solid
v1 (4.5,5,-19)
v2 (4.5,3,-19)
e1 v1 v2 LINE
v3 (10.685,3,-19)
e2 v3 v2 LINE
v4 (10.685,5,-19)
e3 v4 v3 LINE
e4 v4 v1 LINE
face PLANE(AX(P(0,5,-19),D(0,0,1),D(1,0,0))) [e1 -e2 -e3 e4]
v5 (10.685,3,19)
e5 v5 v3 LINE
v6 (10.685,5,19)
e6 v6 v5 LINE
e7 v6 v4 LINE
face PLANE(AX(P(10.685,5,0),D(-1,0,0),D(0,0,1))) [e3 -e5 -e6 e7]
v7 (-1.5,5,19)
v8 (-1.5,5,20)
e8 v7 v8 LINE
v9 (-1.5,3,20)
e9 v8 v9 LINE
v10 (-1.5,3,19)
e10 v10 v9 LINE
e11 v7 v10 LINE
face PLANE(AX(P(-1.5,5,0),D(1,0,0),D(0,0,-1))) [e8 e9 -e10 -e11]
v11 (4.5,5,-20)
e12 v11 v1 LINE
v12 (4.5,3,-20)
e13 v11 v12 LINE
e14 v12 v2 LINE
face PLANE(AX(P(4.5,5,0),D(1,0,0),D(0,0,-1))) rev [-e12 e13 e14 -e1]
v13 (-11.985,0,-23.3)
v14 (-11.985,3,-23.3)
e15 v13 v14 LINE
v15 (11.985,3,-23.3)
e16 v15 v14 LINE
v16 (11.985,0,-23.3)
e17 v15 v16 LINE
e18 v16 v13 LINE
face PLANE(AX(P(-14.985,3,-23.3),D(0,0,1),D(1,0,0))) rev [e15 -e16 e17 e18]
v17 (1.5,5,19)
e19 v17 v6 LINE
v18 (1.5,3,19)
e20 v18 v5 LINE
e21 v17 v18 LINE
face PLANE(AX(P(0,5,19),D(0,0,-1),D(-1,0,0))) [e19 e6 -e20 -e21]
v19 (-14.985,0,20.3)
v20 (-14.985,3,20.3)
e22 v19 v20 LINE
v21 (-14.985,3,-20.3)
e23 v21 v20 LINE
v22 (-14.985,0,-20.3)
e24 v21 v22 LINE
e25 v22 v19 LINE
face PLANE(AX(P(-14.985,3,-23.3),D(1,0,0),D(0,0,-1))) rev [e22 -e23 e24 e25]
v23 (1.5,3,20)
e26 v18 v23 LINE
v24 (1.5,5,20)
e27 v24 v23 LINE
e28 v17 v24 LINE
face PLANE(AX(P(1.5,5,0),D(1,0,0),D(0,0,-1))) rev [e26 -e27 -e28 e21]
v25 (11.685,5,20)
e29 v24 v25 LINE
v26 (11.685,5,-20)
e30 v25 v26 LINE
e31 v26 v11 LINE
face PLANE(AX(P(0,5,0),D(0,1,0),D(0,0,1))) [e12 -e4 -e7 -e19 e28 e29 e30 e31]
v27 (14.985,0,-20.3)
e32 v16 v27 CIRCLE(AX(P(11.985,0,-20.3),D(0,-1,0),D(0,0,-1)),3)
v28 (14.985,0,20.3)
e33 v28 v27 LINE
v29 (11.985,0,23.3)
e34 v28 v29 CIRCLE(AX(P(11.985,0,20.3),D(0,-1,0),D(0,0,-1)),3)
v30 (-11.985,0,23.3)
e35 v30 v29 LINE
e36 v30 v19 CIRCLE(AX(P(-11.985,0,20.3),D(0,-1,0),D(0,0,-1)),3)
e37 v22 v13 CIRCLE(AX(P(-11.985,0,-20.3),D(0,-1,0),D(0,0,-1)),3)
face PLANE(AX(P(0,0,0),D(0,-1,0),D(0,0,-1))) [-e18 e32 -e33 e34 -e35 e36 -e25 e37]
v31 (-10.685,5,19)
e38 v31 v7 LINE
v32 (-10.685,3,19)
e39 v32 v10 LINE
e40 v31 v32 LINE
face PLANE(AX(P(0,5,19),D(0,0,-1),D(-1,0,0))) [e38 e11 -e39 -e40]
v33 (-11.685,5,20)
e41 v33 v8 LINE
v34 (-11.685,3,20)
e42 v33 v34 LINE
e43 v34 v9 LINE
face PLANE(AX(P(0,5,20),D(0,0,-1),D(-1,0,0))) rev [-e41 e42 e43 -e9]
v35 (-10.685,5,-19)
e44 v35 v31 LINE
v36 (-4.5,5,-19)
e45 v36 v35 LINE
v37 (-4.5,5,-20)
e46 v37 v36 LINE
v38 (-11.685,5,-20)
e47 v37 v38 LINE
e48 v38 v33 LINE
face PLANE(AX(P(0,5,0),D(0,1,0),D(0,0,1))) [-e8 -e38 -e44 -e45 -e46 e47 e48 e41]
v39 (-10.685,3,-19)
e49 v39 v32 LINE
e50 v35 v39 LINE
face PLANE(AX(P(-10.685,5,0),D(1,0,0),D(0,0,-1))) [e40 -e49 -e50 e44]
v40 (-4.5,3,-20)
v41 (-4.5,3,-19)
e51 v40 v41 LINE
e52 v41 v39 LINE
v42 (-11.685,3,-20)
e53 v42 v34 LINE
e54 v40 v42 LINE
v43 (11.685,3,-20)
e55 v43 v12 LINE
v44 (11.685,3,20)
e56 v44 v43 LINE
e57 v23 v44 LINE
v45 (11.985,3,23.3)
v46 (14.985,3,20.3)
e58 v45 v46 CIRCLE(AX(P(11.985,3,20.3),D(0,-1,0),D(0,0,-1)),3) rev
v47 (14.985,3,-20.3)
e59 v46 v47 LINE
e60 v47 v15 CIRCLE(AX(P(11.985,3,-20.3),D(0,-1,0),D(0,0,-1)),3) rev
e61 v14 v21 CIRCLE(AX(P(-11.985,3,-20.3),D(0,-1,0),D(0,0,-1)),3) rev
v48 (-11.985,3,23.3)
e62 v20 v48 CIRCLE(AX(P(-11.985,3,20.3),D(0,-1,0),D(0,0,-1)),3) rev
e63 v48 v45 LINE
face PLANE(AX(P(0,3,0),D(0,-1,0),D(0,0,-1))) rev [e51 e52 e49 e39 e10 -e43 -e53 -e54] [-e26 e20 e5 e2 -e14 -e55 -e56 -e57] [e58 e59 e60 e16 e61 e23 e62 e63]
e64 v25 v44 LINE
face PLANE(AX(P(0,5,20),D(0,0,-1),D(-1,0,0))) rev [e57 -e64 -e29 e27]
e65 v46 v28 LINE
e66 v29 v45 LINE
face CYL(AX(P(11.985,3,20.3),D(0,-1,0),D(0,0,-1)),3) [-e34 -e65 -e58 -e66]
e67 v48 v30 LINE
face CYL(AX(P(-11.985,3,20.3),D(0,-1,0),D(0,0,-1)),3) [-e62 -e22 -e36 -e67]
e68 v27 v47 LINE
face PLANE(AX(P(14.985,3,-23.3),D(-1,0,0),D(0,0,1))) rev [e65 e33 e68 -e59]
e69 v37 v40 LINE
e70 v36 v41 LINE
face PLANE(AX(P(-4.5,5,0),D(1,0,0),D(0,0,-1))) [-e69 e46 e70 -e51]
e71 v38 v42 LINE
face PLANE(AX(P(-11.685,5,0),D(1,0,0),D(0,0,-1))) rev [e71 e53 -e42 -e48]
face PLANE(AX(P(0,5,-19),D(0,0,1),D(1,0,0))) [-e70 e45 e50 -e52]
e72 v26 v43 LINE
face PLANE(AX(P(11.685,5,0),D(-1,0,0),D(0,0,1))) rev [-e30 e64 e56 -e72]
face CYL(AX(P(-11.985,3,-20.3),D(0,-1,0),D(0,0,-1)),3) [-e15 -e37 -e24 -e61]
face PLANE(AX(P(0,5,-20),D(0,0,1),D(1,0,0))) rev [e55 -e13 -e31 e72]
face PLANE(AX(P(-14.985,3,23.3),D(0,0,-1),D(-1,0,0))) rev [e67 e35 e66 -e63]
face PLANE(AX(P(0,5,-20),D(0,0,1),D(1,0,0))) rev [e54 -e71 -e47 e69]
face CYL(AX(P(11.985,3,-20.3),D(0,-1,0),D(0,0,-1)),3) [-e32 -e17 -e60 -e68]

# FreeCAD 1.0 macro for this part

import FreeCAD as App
import Part
import Sketcher
from FreeCAD import Vector


def edges_at(feature, points):
    """Names of the edges that pass closest to the given points."""
    edges = feature.Shape.Edges
    near = lambda p: min(range(len(edges)), key=lambda i: edges[i].distToShape(Part.Vertex(*p))[0])
    return sorted({f"Edge{near(p) + 1}" for p in points})

doc = App.newDocument("Part")
params = doc.addObject("Spreadsheet::Sheet", "Params")
for row, (alias, value) in enumerate([
    ("sketch1_height", "46.6 mm"),
    ("sketch1_width", "29.97 mm"),
    ("pad1_length", "3 mm"),
    ("sketch2_height", "1 mm"),
    ("sketch2_height2", "40 mm"),
    ("pad2_length", "2 mm"),
    ("fillet_radius", "3 mm"),
], start=1):
    params.set(f"A{row}", alias)
    params.set(f"B{row}", "=" + value)
    params.setAlias(f"B{row}", alias)

body = doc.addObject("PartDesign::Body", "Body")

# Sketch on XZ plane
sketch1 = doc.addObject("Sketcher::SketchObject", "Sketch")
body.addObject(sketch1)
sketch1.AttachmentSupport = (doc.XZ_Plane, [""])
sketch1.MapMode = "FlatFace"
sketch1.addGeometry(Part.LineSegment(Vector(-14.985, -23.3, 0), Vector(-14.985, 23.3, 0)), False)
sketch1.addGeometry(Part.LineSegment(Vector(-14.985, 23.3, 0), Vector(14.985, 23.3, 0)), False)
sketch1.addGeometry(Part.LineSegment(Vector(14.985, 23.3, 0), Vector(14.985, -23.3, 0)), False)
sketch1.addGeometry(Part.LineSegment(Vector(14.985, -23.3, 0), Vector(-14.985, -23.3, 0)), False)
sketch1.addConstraint(Sketcher.Constraint("Coincident", 0, 2, 1, 1))
sketch1.addConstraint(Sketcher.Constraint("Coincident", 1, 2, 2, 1))
sketch1.addConstraint(Sketcher.Constraint("Coincident", 2, 2, 3, 1))
sketch1.addConstraint(Sketcher.Constraint("Coincident", 3, 2, 0, 1))
sketch1.addConstraint(Sketcher.Constraint("Vertical", 0))
sketch1.addConstraint(Sketcher.Constraint("Horizontal", 1))
sketch1.addConstraint(Sketcher.Constraint("Vertical", 2))
sketch1.addConstraint(Sketcher.Constraint("Horizontal", 3))
sketch1.addConstraint(Sketcher.Constraint("Symmetric", 0, 2, 2, 2, -1, 1))
sketch1.addConstraint(Sketcher.Constraint("DistanceY", 0, 1, 0, 2, 46.6))
sketch1.addConstraint(Sketcher.Constraint("DistanceX", 1, 1, 1, 2, 29.97))
sketch1.setExpression("Constraints[9]", "Params.sketch1_height")
sketch1.setExpression("Constraints[10]", "Params.sketch1_width")
pad1 = doc.addObject("PartDesign::Pad", "Pad")
body.addObject(pad1)
pad1.Profile = sketch1
pad1.setExpression("Length", "Params.pad1_length")
pad1.Reversed = True

# Sketch on XZ plane
sketch2 = doc.addObject("Sketcher::SketchObject", "Sketch001")
body.addObject(sketch2)
sketch2.AttachmentSupport = (doc.XZ_Plane, [""])
sketch2.MapMode = "FlatFace"
sketch2.AttachmentOffset = App.Placement(Vector(0, 0, -3), App.Rotation())
sketch2.addGeometry(Part.LineSegment(Vector(-4.5, -19, 0), Vector(-4.5, -20, 0)), False)
sketch2.addGeometry(Part.LineSegment(Vector(-4.5, -20, 0), Vector(-11.685, -20, 0)), False)
sketch2.addGeometry(Part.LineSegment(Vector(-11.685, -20, 0), Vector(-11.685, 20, 0)), False)
sketch2.addGeometry(Part.LineSegment(Vector(-11.685, 20, 0), Vector(-1.5, 20, 0)), False)
sketch2.addGeometry(Part.LineSegment(Vector(-1.5, 20, 0), Vector(-1.5, 19, 0)), False)
sketch2.addGeometry(Part.LineSegment(Vector(-1.5, 19, 0), Vector(-10.685, 19, 0)), False)
sketch2.addGeometry(Part.LineSegment(Vector(-10.685, 19, 0), Vector(-10.685, -19, 0)), False)
sketch2.addGeometry(Part.LineSegment(Vector(-10.685, -19, 0), Vector(-4.5, -19, 0)), False)
sketch2.addGeometry(Part.LineSegment(Vector(11.685, 20, 0), Vector(11.685, -20, 0)), False)
sketch2.addGeometry(Part.LineSegment(Vector(11.685, -20, 0), Vector(4.5, -20, 0)), False)
sketch2.addGeometry(Part.LineSegment(Vector(4.5, -20, 0), Vector(4.5, -19, 0)), False)
sketch2.addGeometry(Part.LineSegment(Vector(4.5, -19, 0), Vector(10.685, -19, 0)), False)
sketch2.addGeometry(Part.LineSegment(Vector(10.685, -19, 0), Vector(10.685, 19, 0)), False)
sketch2.addGeometry(Part.LineSegment(Vector(10.685, 19, 0), Vector(1.5, 19, 0)), False)
sketch2.addGeometry(Part.LineSegment(Vector(1.5, 19, 0), Vector(1.5, 20, 0)), False)
sketch2.addGeometry(Part.LineSegment(Vector(1.5, 20, 0), Vector(11.685, 20, 0)), False)
sketch2.addConstraint(Sketcher.Constraint("Coincident", 0, 2, 1, 1))
sketch2.addConstraint(Sketcher.Constraint("Coincident", 1, 2, 2, 1))
sketch2.addConstraint(Sketcher.Constraint("Coincident", 2, 2, 3, 1))
sketch2.addConstraint(Sketcher.Constraint("Coincident", 3, 2, 4, 1))
sketch2.addConstraint(Sketcher.Constraint("Coincident", 4, 2, 5, 1))
sketch2.addConstraint(Sketcher.Constraint("Coincident", 5, 2, 6, 1))
sketch2.addConstraint(Sketcher.Constraint("Coincident", 6, 2, 7, 1))
sketch2.addConstraint(Sketcher.Constraint("Coincident", 7, 2, 0, 1))
sketch2.addConstraint(Sketcher.Constraint("Coincident", 8, 2, 9, 1))
sketch2.addConstraint(Sketcher.Constraint("Coincident", 9, 2, 10, 1))
sketch2.addConstraint(Sketcher.Constraint("Coincident", 10, 2, 11, 1))
sketch2.addConstraint(Sketcher.Constraint("Coincident", 11, 2, 12, 1))
sketch2.addConstraint(Sketcher.Constraint("Coincident", 12, 2, 13, 1))
sketch2.addConstraint(Sketcher.Constraint("Coincident", 13, 2, 14, 1))
sketch2.addConstraint(Sketcher.Constraint("Coincident", 14, 2, 15, 1))
sketch2.addConstraint(Sketcher.Constraint("Coincident", 15, 2, 8, 1))
sketch2.addConstraint(Sketcher.Constraint("Vertical", 0))
sketch2.addConstraint(Sketcher.Constraint("Horizontal", 1))
sketch2.addConstraint(Sketcher.Constraint("Vertical", 2))
sketch2.addConstraint(Sketcher.Constraint("Horizontal", 3))
sketch2.addConstraint(Sketcher.Constraint("Vertical", 4))
sketch2.addConstraint(Sketcher.Constraint("Horizontal", 5))
sketch2.addConstraint(Sketcher.Constraint("Vertical", 6))
sketch2.addConstraint(Sketcher.Constraint("Horizontal", 7))
sketch2.addConstraint(Sketcher.Constraint("Vertical", 8))
sketch2.addConstraint(Sketcher.Constraint("Horizontal", 9))
sketch2.addConstraint(Sketcher.Constraint("Vertical", 10))
sketch2.addConstraint(Sketcher.Constraint("Horizontal", 11))
sketch2.addConstraint(Sketcher.Constraint("Vertical", 12))
sketch2.addConstraint(Sketcher.Constraint("Horizontal", 13))
sketch2.addConstraint(Sketcher.Constraint("Vertical", 14))
sketch2.addConstraint(Sketcher.Constraint("Horizontal", 15))
sketch2.addConstraint(Sketcher.Constraint("Symmetric", 2, 2, 8, 2, -1, 1))
sketch2.addConstraint(Sketcher.Constraint("Symmetric", 5, 2, 11, 2, -1, 1))
sketch2.addConstraint(Sketcher.Constraint("Symmetric", 0, 2, 9, 2, -2))
sketch2.addConstraint(Sketcher.Constraint("Symmetric", 4, 2, 13, 2, -2))
sketch2.addConstraint(Sketcher.Constraint("Horizontal", 7, 2, 10, 2))
sketch2.addConstraint(Sketcher.Constraint("Horizontal", 3, 2, 14, 2))
sketch2.addConstraint(Sketcher.Constraint("DistanceY", 0, 2, 0, 1, 1.0))
sketch2.addConstraint(Sketcher.Constraint("DistanceY", 2, 1, 2, 2, 40.0))
sketch2.addConstraint(Sketcher.Constraint("DistanceX", 0, 2, 3, 2, 3.0))
sketch2.addConstraint(Sketcher.Constraint("DistanceX", 2, 2, 5, 2, 1.0))
sketch2.addConstraint(Sketcher.Constraint("DistanceX", 0, 2, 9, 2, 9.0))
sketch2.addConstraint(Sketcher.Constraint("DistanceX", 1, 2, 1, 1, 7.185))
sketch2.setExpression("Constraints[38]", "Params.sketch2_height")
sketch2.setExpression("Constraints[39]", "Params.sketch2_height2")
pad2 = doc.addObject("PartDesign::Pad", "Pad001")
body.addObject(pad2)
pad2.Profile = sketch2
pad2.setExpression("Length", "Params.pad2_length")
pad2.Reversed = True
doc.recompute()

fillet = doc.addObject("PartDesign::Fillet", "Fillet")
body.addObject(fillet)
fillet.Base = (pad2, edges_at(pad2, [
    (14.985, 1.5, -23.3),
    (14.985, 1.5, 23.3),
    (-14.985, 1.5, 23.3),
    (-14.985, 1.5, -23.3),
]))
fillet.setExpression("Radius", "Params.fillet_radius")

doc.recompute()
